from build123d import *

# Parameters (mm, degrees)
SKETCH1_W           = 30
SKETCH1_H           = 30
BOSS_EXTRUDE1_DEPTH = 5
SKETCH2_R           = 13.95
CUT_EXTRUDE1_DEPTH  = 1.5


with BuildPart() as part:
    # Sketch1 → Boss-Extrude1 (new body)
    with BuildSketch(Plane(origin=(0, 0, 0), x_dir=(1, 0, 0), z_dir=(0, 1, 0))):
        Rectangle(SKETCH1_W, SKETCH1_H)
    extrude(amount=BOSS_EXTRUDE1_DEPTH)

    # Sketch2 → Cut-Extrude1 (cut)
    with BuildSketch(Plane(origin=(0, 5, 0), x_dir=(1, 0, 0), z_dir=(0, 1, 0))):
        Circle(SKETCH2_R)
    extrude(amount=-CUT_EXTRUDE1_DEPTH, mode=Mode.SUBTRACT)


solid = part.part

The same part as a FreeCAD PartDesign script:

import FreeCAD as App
import Part
import Sketcher
from FreeCAD import Vector


def add_polygon(sketch, points):
    """Adds a closed chain of lines whose ends are joined by coincident constraints."""
    first, n = sketch.GeometryCount, len(points)
    for a, b in zip(points, points[1:] + points[:1]):
        sketch.addGeometry(Part.LineSegment(App.Vector(*a, 0), App.Vector(*b, 0)), False)
    for i in range(n):
        sketch.addConstraint(Sketcher.Constraint("Coincident", first + i, 2, first + (i + 1) % n, 1))

doc = App.newDocument("Part")
body = doc.addObject("PartDesign::Body", "Body")

sketch1 = body.newObject("Sketcher::SketchObject", "Sketch")
sketch1.AttachmentSupport = (doc.getObject("XZ_Plane"), [""])
sketch1.MapMode = "FlatFace"
add_polygon(sketch1, [(-15, -15), (-15, 15), (15, 15), (15, -15)])
sketch1.addConstraint(Sketcher.Constraint("Vertical", 0))
sketch1.addConstraint(Sketcher.Constraint("Horizontal", 1))
sketch1.addConstraint(Sketcher.Constraint("Vertical", 2))
sketch1.addConstraint(Sketcher.Constraint("Horizontal", 3))
sketch1.addConstraint(Sketcher.Constraint("Symmetric", 0, 2, 2, 2, -1, 1))
sketch1.addConstraint(Sketcher.Constraint("Equal", 3, 0))
sketch1.addConstraint(Sketcher.Constraint("DistanceX", 1, 1, 1, 2, 30.0))
pad1 = body.newObject("PartDesign::Pad", "Pad")
pad1.Profile = sketch1
pad1.Length = 5
pad1.Reversed = True

sketch2 = body.newObject("Sketcher::SketchObject", "Sketch001")
sketch2.AttachmentSupport = (doc.getObject("XZ_Plane"), [""])
sketch2.MapMode = "FlatFace"
sketch2.AttachmentOffset = App.Placement(Vector(0, 0, -5), App.Rotation())
sketch2.addGeometry(Part.Circle(Vector(0, 0, 0), Vector(0, 0, 1), 14), False)
sketch2.addConstraint(Sketcher.Constraint("Coincident", 0, 3, -1, 1))
sketch2.addConstraint(Sketcher.Constraint("Diameter", 0, 27.9))
pocket1 = body.newObject("PartDesign::Pocket", "Pocket")
pocket1.Profile = sketch2
pocket1.Length = 1.5
pocket1.Reversed = True

doc.recompute()
